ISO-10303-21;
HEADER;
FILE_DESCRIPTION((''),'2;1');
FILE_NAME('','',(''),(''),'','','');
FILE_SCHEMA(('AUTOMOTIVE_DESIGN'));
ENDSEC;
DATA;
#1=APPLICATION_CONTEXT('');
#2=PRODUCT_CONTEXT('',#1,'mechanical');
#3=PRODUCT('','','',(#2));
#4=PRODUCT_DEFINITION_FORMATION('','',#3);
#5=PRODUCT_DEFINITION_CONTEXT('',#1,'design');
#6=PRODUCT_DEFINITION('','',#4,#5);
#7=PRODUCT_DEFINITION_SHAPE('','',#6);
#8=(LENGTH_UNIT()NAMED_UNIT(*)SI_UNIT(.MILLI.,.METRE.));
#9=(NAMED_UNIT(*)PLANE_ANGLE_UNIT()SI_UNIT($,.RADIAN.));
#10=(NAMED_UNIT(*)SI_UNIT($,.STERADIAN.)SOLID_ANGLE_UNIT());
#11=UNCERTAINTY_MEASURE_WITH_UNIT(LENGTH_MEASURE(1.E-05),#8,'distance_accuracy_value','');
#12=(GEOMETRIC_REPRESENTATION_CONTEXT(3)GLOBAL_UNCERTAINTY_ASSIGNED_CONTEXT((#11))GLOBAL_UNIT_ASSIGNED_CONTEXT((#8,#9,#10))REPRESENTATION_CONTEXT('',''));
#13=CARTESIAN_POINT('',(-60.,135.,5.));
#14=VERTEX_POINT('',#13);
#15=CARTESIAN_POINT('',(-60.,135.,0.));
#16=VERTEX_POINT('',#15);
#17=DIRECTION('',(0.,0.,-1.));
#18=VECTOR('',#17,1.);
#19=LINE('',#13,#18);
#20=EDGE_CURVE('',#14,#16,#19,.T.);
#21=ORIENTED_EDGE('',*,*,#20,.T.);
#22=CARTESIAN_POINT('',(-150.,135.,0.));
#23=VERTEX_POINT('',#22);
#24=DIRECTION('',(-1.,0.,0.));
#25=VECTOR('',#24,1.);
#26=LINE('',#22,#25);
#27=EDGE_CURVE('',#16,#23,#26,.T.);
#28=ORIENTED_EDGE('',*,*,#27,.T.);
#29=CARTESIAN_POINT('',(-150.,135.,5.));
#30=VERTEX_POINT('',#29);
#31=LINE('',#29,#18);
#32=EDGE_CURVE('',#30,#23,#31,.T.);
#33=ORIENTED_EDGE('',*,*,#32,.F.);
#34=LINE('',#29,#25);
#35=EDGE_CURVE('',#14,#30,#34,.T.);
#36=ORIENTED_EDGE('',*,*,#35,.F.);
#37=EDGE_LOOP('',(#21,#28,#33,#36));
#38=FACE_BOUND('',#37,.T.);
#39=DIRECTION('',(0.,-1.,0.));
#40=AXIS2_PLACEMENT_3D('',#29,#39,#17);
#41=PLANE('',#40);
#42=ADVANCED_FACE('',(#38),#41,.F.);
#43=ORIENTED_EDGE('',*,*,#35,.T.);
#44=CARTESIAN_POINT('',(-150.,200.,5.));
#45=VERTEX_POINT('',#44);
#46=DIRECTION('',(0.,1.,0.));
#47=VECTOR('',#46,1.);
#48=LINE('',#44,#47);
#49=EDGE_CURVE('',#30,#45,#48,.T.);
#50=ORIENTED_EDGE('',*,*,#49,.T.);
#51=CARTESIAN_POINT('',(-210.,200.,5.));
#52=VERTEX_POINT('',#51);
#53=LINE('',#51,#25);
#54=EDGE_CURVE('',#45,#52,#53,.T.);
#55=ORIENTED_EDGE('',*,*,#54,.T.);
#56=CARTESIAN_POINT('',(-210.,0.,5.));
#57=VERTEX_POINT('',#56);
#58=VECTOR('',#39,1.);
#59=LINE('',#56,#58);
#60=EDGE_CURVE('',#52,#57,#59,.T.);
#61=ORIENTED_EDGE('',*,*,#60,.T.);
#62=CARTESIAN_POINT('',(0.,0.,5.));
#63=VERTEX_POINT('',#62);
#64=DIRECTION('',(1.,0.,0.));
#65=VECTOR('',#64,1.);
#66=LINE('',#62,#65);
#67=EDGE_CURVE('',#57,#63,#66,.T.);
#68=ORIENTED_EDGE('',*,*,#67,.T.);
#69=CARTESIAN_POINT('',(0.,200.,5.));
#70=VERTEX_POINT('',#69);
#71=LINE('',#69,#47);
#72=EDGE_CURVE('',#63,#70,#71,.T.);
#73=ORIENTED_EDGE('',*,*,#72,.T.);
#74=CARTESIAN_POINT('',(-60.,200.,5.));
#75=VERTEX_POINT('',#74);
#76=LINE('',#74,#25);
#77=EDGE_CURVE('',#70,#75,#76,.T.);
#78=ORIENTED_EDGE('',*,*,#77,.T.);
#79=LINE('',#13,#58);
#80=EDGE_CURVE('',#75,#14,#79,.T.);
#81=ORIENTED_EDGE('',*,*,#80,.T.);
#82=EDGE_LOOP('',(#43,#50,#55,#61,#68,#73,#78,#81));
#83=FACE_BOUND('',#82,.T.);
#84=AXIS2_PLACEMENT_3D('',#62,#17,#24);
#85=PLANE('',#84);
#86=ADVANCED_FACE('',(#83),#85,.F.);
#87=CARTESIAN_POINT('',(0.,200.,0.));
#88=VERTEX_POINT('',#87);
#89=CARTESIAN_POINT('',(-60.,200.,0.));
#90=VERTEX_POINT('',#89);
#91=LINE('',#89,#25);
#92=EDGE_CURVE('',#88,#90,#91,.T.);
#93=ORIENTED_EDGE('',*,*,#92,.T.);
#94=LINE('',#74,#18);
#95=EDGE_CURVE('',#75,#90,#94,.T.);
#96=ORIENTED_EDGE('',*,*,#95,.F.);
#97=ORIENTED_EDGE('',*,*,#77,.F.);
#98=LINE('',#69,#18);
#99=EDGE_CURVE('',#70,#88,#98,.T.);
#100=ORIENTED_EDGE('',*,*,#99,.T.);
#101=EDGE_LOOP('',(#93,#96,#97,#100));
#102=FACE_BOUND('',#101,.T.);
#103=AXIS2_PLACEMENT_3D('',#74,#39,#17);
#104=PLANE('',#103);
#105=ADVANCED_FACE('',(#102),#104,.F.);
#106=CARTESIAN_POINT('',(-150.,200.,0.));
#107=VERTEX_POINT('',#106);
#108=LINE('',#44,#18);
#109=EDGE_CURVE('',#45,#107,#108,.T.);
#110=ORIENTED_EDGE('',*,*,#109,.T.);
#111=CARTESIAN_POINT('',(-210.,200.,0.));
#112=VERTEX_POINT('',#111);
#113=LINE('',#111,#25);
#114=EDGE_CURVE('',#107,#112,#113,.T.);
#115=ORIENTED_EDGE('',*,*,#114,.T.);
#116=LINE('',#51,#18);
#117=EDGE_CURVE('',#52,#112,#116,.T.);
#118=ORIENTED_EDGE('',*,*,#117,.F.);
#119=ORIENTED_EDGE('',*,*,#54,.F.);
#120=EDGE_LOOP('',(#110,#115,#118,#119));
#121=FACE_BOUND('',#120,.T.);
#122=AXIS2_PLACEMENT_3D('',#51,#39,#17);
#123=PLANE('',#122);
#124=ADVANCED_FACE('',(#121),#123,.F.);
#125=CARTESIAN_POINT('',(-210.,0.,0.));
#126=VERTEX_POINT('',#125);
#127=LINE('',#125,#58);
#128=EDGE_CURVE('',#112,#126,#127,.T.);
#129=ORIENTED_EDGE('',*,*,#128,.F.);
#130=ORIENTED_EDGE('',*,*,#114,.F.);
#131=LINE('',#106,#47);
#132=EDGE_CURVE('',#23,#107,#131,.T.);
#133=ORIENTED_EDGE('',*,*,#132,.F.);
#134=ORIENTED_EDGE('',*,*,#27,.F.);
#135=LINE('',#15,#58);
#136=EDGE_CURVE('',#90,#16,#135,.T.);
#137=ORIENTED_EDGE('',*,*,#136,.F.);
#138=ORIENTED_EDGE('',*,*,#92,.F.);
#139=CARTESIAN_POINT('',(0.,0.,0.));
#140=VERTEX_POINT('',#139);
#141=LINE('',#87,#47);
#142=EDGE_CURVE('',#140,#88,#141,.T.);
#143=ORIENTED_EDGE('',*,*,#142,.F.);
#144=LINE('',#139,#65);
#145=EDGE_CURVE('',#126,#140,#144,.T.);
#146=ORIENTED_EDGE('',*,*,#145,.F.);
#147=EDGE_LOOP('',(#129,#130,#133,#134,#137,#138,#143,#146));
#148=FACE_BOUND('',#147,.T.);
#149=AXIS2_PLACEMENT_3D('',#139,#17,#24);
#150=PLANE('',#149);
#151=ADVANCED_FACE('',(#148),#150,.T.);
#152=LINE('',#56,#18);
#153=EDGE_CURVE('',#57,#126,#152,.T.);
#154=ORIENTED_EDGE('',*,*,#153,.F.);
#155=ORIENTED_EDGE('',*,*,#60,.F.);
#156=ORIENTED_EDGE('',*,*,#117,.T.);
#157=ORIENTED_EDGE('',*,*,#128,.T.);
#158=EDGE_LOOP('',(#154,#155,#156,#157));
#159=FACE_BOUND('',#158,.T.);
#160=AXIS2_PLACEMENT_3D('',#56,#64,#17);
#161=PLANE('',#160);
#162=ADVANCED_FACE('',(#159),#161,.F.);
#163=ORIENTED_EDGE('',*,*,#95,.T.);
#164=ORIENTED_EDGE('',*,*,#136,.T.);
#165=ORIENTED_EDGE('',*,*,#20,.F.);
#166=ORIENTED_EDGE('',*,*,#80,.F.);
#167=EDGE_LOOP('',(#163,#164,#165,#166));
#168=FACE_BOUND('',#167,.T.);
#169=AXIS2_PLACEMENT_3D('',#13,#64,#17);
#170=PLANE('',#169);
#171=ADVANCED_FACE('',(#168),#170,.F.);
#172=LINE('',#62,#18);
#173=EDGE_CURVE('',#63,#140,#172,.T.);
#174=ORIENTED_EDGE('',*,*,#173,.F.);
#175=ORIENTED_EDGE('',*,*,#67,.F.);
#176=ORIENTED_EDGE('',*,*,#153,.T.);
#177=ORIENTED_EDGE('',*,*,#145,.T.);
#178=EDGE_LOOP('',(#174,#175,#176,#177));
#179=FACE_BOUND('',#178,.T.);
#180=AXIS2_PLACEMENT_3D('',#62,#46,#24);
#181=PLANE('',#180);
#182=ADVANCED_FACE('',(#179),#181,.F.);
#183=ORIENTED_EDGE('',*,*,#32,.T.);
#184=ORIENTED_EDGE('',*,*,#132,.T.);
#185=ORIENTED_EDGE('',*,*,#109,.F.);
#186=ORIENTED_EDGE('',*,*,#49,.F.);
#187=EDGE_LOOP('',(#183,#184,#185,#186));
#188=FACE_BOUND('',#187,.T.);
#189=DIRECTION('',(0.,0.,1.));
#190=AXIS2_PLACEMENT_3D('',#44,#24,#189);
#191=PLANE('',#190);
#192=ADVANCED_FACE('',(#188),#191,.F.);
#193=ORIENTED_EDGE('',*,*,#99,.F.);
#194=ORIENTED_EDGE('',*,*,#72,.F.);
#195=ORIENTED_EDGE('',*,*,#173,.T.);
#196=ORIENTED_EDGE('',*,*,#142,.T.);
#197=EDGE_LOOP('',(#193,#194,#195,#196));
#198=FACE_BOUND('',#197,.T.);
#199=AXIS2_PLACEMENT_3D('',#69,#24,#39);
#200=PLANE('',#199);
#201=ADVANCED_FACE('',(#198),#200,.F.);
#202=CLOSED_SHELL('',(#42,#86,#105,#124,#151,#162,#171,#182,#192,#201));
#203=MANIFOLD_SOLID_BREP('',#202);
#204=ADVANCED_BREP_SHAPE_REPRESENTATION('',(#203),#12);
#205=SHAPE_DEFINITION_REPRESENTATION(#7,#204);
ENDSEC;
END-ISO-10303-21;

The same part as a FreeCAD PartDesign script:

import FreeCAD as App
import Part
import Sketcher
from FreeCAD import Vector


def add_polygon(sketch, points):
    """Adds a closed chain of lines whose ends are joined by coincident constraints."""
    first, n = sketch.GeometryCount, len(points)
    for a, b in zip(points, points[1:] + points[:1]):
        sketch.addGeometry(Part.LineSegment(App.Vector(*a, 0), App.Vector(*b, 0)), False)
    for i in range(n):
        sketch.addConstraint(Sketcher.Constraint("Coincident", first + i, 2, first + (i + 1) % n, 1))

doc = App.newDocument("Part")
params = doc.addObject("Spreadsheet::Sheet", "Params")
for row, (alias, value) in enumerate([
    ("sketch1_width", "60 mm"),
    ("sketch1_width2", "210 mm"),
    ("sketch1_height", "200 mm"),
    ("sketch1_height2", "65 mm"),
    ("pad1_length", "5 mm"),
], start=1):
    params.set(f"A{row}", alias)
    params.set(f"B{row}", "=" + value)
    params.setAlias(f"B{row}", alias)

body = doc.addObject("PartDesign::Body", "Body")

sketch1 = body.newObject("Sketcher::SketchObject", "Sketch")
sketch1.AttachmentSupport = (doc.getObject("XY_Plane"), [""])
sketch1.MapMode = "FlatFace"
add_polygon(sketch1, [(-150, 200), (-210, 200), (-210, 0), (0, 0), (0, 200), (-60, 200), (-60, 135), (-150, 135)])
sketch1.addConstraint([
    Sketcher.Constraint("Horizontal", 0),
    Sketcher.Constraint("Vertical", 1),
    Sketcher.Constraint("Horizontal", 2),
    Sketcher.Constraint("Vertical", 3),
    Sketcher.Constraint("Horizontal", 4),
    Sketcher.Constraint("Vertical", 5),
    Sketcher.Constraint("Horizontal", 6),
    Sketcher.Constraint("Vertical", 7),
    Sketcher.Constraint("Coincident", 2, 2, -1, 1),
    Sketcher.Constraint("Horizontal", 0, 2, 3, 2),
    Sketcher.Constraint("Equal", 0, 4),
    Sketcher.Constraint("DistanceX", 0, 2, 0, 1, 60.0),
    Sketcher.Constraint("DistanceX", 2, 1, 2, 2, 210.0),
    Sketcher.Constraint("DistanceY", 1, 2, 1, 1, 200.0),
    Sketcher.Constraint("DistanceY", 5, 2, 5, 1, 65.0),
])
sketch1.setExpression("Constraints[19]", "Params.sketch1_width")
sketch1.setExpression("Constraints[20]", "Params.sketch1_width2")
sketch1.setExpression("Constraints[21]", "Params.sketch1_height")
sketch1.setExpression("Constraints[22]", "Params.sketch1_height2")
pad1 = body.newObject("PartDesign::Pad", "Pad")
pad1.Profile = sketch1
pad1.setExpression("Length", "Params.pad1_length")

doc.recompute()
